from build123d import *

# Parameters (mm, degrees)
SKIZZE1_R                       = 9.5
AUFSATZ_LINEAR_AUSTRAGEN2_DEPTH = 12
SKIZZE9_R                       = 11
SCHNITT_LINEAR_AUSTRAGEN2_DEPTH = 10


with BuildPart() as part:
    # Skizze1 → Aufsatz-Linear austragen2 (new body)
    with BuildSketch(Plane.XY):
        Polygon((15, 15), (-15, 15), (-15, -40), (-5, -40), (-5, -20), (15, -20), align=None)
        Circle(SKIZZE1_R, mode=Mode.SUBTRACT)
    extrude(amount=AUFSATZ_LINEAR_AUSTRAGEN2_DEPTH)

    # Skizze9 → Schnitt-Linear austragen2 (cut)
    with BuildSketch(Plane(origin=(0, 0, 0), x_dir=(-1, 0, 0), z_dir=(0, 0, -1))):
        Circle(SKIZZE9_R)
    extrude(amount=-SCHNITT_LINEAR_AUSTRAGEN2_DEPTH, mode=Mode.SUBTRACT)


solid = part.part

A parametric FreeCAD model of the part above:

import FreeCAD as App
import Part
import Sketcher
from FreeCAD import Vector
Q = App.Units.Quantity


def add_polygon(sketch, points):
    """Adds a closed chain of lines whose ends are joined by coincident constraints."""
    first, n = sketch.GeometryCount, len(points)
    for a, b in zip(points, points[1:] + points[:1]):
        sketch.addGeometry(Part.LineSegment(App.Vector(*a, 0), App.Vector(*b, 0)), False)
    for i in range(n):
        sketch.addConstraint(Sketcher.Constraint("Coincident", first + i, 2, first + (i + 1) % n, 1))

doc = App.newDocument("Part")
body = doc.addObject("PartDesign::Body", "Body")

sketch1 = body.newObject("Sketcher::SketchObject", "Sketch")
sketch1.AttachmentSupport = (doc.getObject("XY_Plane"), [""])
sketch1.MapMode = "FlatFace"
add_polygon(sketch1, [(15, 15), (-15, 15), (-15, -40), (-5, -40), (-5, -20), (15, -20)])
sketch1.addGeometry(Part.Circle(Vector(0, 0, 0), Vector(0, 0, 1), 10), False)
sketch1.addConstraint(Sketcher.Constraint("Horizontal", 0))
sketch1.addConstraint(Sketcher.Constraint("Vertical", 1))
sketch1.addConstraint(Sketcher.Constraint("Horizontal", 2))
sketch1.addConstraint(Sketcher.Constraint("Vertical", 3))
sketch1.addConstraint(Sketcher.Constraint("Horizontal", 4))
sketch1.addConstraint(Sketcher.Constraint("Vertical", 5))
sketch1.addConstraint(Sketcher.Constraint("Coincident", 6, 3, -1, 1))
sketch1.addConstraint(Sketcher.Constraint("Equal", 4, 3))
sketch1.addConstraint(Sketcher.Constraint("Diameter", 6, Q("19 mm")))
sketch1.addConstraint(Sketcher.Constraint("DistanceX", 0, 2, 0, 1, Q("30 mm")))
sketch1.addConstraint(Sketcher.Constraint("DistanceX", 2, 1, 2, 2, Q("10 mm")))
sketch1.addConstraint(Sketcher.Constraint("DistanceY", 1, 2, 1, 1, Q("55 mm")))
sketch1.addConstraint(Sketcher.Constraint("DistanceX", 0, 2, -1, 1, Q("15 mm")))
sketch1.addConstraint(Sketcher.Constraint("DistanceY", -1, 1, 0, 2, Q("15 mm")))
pad1 = body.newObject("PartDesign::Pad", "Pad")
pad1.Profile = sketch1
pad1.Length = 12

sketch2 = body.newObject("Sketcher::SketchObject", "Sketch001")
sketch2.AttachmentSupport = (doc.getObject("XY_Plane"), [""])
sketch2.MapMode = "FlatFace"
sketch2.addGeometry(Part.Circle(Vector(0, 0, 0), Vector(0, 0, 1), 11), False)
sketch2.addConstraint(Sketcher.Constraint("Coincident", 0, 3, -1, 1))
sketch2.addConstraint(Sketcher.Constraint("Diameter", 0, Q("22 mm")))
pocket1 = body.newObject("PartDesign::Pocket", "Pocket")
pocket1.Profile = sketch2
pocket1.Length = 10
pocket1.Reversed = True

doc.recompute()
